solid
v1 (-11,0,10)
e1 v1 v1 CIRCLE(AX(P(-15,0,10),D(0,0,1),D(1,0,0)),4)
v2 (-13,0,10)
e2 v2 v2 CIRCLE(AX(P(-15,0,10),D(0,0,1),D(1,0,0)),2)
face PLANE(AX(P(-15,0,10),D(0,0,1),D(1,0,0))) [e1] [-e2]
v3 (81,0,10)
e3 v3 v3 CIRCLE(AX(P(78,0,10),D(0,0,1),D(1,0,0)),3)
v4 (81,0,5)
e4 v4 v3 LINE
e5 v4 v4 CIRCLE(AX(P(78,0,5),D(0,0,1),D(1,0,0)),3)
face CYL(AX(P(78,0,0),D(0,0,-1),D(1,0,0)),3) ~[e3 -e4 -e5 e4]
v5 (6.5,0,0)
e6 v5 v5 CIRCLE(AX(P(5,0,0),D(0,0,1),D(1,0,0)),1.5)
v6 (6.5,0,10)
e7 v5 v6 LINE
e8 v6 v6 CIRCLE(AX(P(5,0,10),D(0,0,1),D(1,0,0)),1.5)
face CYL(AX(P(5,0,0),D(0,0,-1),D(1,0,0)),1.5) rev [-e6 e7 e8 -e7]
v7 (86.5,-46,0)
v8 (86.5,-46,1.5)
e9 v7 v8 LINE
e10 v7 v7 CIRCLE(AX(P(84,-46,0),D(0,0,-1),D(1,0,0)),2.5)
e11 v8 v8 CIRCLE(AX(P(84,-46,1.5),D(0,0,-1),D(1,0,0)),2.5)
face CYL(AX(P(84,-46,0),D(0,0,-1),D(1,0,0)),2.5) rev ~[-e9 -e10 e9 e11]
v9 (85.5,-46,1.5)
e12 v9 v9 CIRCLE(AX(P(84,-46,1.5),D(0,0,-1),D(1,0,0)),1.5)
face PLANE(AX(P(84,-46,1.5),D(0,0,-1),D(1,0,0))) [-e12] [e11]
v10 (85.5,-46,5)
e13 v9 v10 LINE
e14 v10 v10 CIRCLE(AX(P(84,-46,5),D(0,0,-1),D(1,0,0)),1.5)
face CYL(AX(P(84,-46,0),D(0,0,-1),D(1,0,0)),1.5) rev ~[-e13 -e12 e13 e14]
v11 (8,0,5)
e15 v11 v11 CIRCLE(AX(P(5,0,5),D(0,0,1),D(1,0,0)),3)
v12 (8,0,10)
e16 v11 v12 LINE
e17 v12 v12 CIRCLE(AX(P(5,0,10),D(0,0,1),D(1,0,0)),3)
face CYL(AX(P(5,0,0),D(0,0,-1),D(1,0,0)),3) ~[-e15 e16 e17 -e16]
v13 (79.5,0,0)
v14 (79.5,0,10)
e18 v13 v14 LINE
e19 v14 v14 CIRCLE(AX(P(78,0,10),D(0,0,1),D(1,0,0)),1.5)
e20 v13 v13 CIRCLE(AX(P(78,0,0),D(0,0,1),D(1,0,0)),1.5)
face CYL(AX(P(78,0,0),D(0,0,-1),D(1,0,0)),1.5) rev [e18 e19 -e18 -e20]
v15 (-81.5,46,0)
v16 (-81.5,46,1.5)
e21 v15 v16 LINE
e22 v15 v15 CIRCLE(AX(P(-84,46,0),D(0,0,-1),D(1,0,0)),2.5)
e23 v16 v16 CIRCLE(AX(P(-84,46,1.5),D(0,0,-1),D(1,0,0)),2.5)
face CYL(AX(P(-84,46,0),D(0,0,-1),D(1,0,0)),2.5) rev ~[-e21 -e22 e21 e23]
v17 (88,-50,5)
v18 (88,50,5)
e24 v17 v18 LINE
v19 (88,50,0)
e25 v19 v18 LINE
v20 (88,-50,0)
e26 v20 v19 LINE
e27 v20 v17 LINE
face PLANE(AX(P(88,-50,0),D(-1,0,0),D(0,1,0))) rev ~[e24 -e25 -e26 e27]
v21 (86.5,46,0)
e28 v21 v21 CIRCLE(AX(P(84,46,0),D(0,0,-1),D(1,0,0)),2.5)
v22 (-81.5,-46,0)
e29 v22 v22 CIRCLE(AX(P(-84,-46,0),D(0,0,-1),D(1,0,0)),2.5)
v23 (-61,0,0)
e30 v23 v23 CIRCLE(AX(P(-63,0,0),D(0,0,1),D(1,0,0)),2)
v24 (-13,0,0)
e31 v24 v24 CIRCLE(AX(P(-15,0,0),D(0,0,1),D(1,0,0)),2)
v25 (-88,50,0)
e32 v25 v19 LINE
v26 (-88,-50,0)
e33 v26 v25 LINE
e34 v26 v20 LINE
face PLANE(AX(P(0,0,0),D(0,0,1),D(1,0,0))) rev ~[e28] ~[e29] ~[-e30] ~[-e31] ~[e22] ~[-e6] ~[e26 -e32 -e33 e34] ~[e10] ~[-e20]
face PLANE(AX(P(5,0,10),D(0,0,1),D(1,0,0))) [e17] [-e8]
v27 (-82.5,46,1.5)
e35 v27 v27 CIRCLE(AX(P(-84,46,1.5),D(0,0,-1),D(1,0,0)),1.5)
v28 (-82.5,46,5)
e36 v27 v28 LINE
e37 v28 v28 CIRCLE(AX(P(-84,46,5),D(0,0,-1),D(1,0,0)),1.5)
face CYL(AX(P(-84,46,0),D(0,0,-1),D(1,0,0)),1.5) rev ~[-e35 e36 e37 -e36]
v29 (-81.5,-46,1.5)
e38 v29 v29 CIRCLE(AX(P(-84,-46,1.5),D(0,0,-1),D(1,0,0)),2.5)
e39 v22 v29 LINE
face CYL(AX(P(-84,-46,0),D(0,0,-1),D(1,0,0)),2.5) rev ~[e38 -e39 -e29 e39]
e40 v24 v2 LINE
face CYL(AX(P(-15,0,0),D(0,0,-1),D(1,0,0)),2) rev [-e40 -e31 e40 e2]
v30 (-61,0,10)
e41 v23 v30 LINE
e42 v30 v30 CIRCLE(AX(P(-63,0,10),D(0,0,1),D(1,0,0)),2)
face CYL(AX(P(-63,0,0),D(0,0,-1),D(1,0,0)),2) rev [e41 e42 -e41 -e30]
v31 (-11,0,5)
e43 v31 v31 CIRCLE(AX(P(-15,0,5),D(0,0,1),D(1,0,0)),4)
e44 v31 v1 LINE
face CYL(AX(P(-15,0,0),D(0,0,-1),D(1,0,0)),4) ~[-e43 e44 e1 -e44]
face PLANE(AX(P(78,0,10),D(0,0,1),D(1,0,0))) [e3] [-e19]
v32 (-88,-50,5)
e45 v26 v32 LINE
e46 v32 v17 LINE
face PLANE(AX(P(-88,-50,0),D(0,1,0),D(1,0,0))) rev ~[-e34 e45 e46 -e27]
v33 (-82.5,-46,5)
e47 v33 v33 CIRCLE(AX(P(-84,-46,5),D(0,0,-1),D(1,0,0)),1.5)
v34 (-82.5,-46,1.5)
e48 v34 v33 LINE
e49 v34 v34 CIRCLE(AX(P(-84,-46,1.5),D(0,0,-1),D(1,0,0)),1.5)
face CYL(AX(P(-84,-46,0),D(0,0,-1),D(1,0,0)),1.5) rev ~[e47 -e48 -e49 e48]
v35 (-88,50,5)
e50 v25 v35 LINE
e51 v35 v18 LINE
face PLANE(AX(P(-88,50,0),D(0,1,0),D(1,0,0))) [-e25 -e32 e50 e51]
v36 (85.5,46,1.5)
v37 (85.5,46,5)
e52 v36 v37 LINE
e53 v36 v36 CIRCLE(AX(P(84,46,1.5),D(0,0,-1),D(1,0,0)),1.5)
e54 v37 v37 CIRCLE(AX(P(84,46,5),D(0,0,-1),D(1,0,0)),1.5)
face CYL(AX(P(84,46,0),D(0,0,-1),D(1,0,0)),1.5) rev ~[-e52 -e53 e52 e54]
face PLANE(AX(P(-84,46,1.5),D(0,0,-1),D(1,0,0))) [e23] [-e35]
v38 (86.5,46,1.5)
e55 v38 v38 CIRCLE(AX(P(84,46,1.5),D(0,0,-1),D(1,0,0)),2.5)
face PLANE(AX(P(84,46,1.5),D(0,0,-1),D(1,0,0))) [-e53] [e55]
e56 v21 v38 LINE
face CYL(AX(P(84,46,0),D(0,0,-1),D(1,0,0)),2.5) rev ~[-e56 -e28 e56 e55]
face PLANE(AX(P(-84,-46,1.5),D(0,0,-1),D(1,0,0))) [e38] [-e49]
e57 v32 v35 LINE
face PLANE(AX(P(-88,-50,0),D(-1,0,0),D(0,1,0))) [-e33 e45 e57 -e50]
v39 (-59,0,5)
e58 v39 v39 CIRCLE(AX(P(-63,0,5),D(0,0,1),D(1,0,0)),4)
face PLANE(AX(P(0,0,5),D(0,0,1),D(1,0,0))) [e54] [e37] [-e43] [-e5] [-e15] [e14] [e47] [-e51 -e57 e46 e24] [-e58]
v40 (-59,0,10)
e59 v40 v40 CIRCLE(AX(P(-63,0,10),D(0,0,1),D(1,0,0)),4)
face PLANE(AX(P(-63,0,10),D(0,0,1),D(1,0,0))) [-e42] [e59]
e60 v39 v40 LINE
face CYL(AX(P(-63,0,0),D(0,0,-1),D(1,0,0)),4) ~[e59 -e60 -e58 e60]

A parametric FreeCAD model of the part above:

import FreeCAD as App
import Part
import Sketcher

doc = App.newDocument("Part")
body = doc.addObject("PartDesign::Body", "Body")

sketch1 = body.newObject("Sketcher::SketchObject", "Sketch")
sketch1.AttachmentSupport = (doc.getObject("XY_Plane"), [""])
sketch1.MapMode = "FlatFace"
sketch1.addGeometry([
    Part.LineSegment(App.Vector(-88, 50, 0), App.Vector(-88, -50, 0)),
    Part.LineSegment(App.Vector(-88, -50, 0), App.Vector(88, -50, 0)),
    Part.LineSegment(App.Vector(88, -50, 0), App.Vector(88, 50, 0)),
    Part.LineSegment(App.Vector(88, 50, 0), App.Vector(-88, 50, 0)),
    Part.Circle(App.Vector(-63, 0, 0), App.Vector(0, 0, 1), 4),
    Part.Circle(App.Vector(-15, 0, 0), App.Vector(0, 0, 1), 4),
    Part.Circle(App.Vector(5, 0, 0), App.Vector(0, 0, 1), 3),
    Part.Circle(App.Vector(78, 0, 0), App.Vector(0, 0, 1), 3),
], False)
sketch1.addConstraint([
    Sketcher.Constraint("Coincident", 0, 2, 1, 1),
    Sketcher.Constraint("Coincident", 1, 2, 2, 1),
    Sketcher.Constraint("Coincident", 2, 2, 3, 1),
    Sketcher.Constraint("Coincident", 3, 2, 0, 1),
    Sketcher.Constraint("Vertical", 0),
    Sketcher.Constraint("Horizontal", 1),
    Sketcher.Constraint("Vertical", 2),
    Sketcher.Constraint("Horizontal", 3),
    Sketcher.Constraint("Equal", 4, 5),
    Sketcher.Constraint("Equal", 6, 7),
    Sketcher.Constraint("Symmetric", 0, 2, 2, 2, -1, 1),
    Sketcher.Constraint("PointOnObject", 4, 3, -1),
    Sketcher.Constraint("PointOnObject", 5, 3, -1),
    Sketcher.Constraint("PointOnObject", 6, 3, -1),
    Sketcher.Constraint("PointOnObject", 7, 3, -1),
    Sketcher.Constraint("Diameter", 4, 8.0),
    Sketcher.Constraint("Diameter", 6, 6.0),
    Sketcher.Constraint("DistanceX", 1, 1, 1, 2, 176.0),
    Sketcher.Constraint("DistanceY", 0, 2, 0, 1, 100.0),
    Sketcher.Constraint("DistanceX", 4, 3, -1, 1, 63.0),
    Sketcher.Constraint("DistanceX", 5, 3, -1, 1, 15.0),
    Sketcher.Constraint("DistanceX", -1, 1, 6, 3, 5.0),
    Sketcher.Constraint("DistanceX", -1, 1, 7, 3, 78.0),
])
pad1 = body.newObject("PartDesign::Pad", "Pad")
pad1.Profile = sketch1
pad1.Length = 5

sketch2 = body.newObject("Sketcher::SketchObject", "Sketch001")
sketch2.AttachmentSupport = (doc.getObject("XY_Plane"), [""])
sketch2.MapMode = "FlatFace"
sketch2.addGeometry([
    Part.Circle(App.Vector(-63, 0, 0), App.Vector(0, 0, 1), 4),
    Part.Circle(App.Vector(-63, 0, 0), App.Vector(0, 0, 1), 2),
    Part.Circle(App.Vector(-15, 0, 0), App.Vector(0, 0, 1), 4),
    Part.Circle(App.Vector(-15, 0, 0), App.Vector(0, 0, 1), 2),
    Part.Circle(App.Vector(5, 0, 0), App.Vector(0, 0, 1), 3),
    Part.Circle(App.Vector(5, 0, 0), App.Vector(0, 0, 1), 1.5),
    Part.Circle(App.Vector(78, 0, 0), App.Vector(0, 0, 1), 3),
    Part.Circle(App.Vector(78, 0, 0), App.Vector(0, 0, 1), 1.5),
], False)
sketch2.addConstraint([
    Sketcher.Constraint("Coincident", 1, 3, 0, 3),
    Sketcher.Constraint("Coincident", 3, 3, 2, 3),
    Sketcher.Constraint("Coincident", 5, 3, 4, 3),
    Sketcher.Constraint("Coincident", 7, 3, 6, 3),
    Sketcher.Constraint("Equal", 0, 2),
    Sketcher.Constraint("Equal", 1, 3),
    Sketcher.Constraint("Equal", 4, 6),
    Sketcher.Constraint("Equal", 5, 7),
    Sketcher.Constraint("PointOnObject", 0, 3, -1),
    Sketcher.Constraint("PointOnObject", 2, 3, -1),
    Sketcher.Constraint("PointOnObject", 4, 3, -1),
    Sketcher.Constraint("PointOnObject", 6, 3, -1),
    Sketcher.Constraint("Diameter", 0, 8.0),
    Sketcher.Constraint("Diameter", 1, 4.0),
    Sketcher.Constraint("Diameter", 4, 6.0),
    Sketcher.Constraint("Diameter", 5, 3.0),
    Sketcher.Constraint("DistanceX", 0, 3, -1, 1, 63.0),
    Sketcher.Constraint("DistanceX", 2, 3, -1, 1, 15.0),
    Sketcher.Constraint("DistanceX", -1, 1, 4, 3, 5.0),
    Sketcher.Constraint("DistanceX", -1, 1, 6, 3, 78.0),
])
pad2 = body.newObject("PartDesign::Pad", "Pad001")
pad2.Profile = sketch2
pad2.Length = 10

sketch3 = body.newObject("Sketcher::SketchObject", "Sketch002")
sketch3.AttachmentSupport = (doc.getObject("XY_Plane"), [""])
sketch3.MapMode = "FlatFace"
sketch3.addGeometry([
    Part.Circle(App.Vector(-84, -46, 0), App.Vector(0, 0, 1), 1.5),
    Part.Circle(App.Vector(-84, 46, 0), App.Vector(0, 0, 1), 1.5),
    Part.Circle(App.Vector(84, -46, 0), App.Vector(0, 0, 1), 1.5),
    Part.Circle(App.Vector(84, 46, 0), App.Vector(0, 0, 1), 1.5),
], False)
sketch3.addConstraint([
    Sketcher.Constraint("Equal", 0, 1),
    Sketcher.Constraint("Equal", 1, 2),
    Sketcher.Constraint("Equal", 2, 3),
    Sketcher.Constraint("Symmetric", 1, 3, 2, 3, -1, 1),
    Sketcher.Constraint("Symmetric", 0, 3, 3, 3, -1, 1),
    Sketcher.Constraint("Symmetric", 0, 3, 2, 3, -2),
    Sketcher.Constraint("Diameter", 0, 3.0),
    Sketcher.Constraint("DistanceX", 0, 3, -1, 1, 84.0),
    Sketcher.Constraint("DistanceY", 0, 3, -1, 1, 46.0),
])
pocket1 = body.newObject("PartDesign::Pocket", "Pocket")
pocket1.Profile = sketch3
pocket1.Type = "ThroughAll"
pocket1.Reversed = True

sketch4 = body.newObject("Sketcher::SketchObject", "Sketch003")
sketch4.AttachmentSupport = (doc.getObject("XY_Plane"), [""])
sketch4.MapMode = "FlatFace"
sketch4.addGeometry([
    Part.Circle(App.Vector(84, 46, 0), App.Vector(0, 0, 1), 2.5),
    Part.Circle(App.Vector(84, 46, 0), App.Vector(0, 0, 1), 1.5),
    Part.Circle(App.Vector(84, -46, 0), App.Vector(0, 0, 1), 2.5),
    Part.Circle(App.Vector(84, -46, 0), App.Vector(0, 0, 1), 1.5),
    Part.Circle(App.Vector(-84, -46, 0), App.Vector(0, 0, 1), 2.5),
    Part.Circle(App.Vector(-84, -46, 0), App.Vector(0, 0, 1), 1.5),
    Part.Circle(App.Vector(-84, 46, 0), App.Vector(0, 0, 1), 2.5),
    Part.Circle(App.Vector(-84, 46, 0), App.Vector(0, 0, 1), 1.5),
], False)
sketch4.addConstraint([
    Sketcher.Constraint("Coincident", 1, 3, 0, 3),
    Sketcher.Constraint("Coincident", 3, 3, 2, 3),
    Sketcher.Constraint("Coincident", 5, 3, 4, 3),
    Sketcher.Constraint("Coincident", 7, 3, 6, 3),
    Sketcher.Constraint("Equal", 0, 2),
    Sketcher.Constraint("Equal", 1, 3),
    Sketcher.Constraint("Equal", 2, 4),
    Sketcher.Constraint("Equal", 3, 5),
    Sketcher.Constraint("Equal", 4, 6),
    Sketcher.Constraint("Equal", 5, 7),
    Sketcher.Constraint("Symmetric", 0, 3, 4, 3, -1, 1),
    Sketcher.Constraint("Symmetric", 2, 3, 6, 3, -1, 1),
    Sketcher.Constraint("Symmetric", 2, 3, 4, 3, -2),
    Sketcher.Constraint("Diameter", 0, 5.0),
    Sketcher.Constraint("Diameter", 1, 3.0),
    Sketcher.Constraint("DistanceX", -1, 1, 0, 3, 84.0),
    Sketcher.Constraint("DistanceY", -1, 1, 0, 3, 46.0),
])
pocket2 = body.newObject("PartDesign::Pocket", "Pocket001")
pocket2.Profile = sketch4
pocket2.Length = 1.5
pocket2.Reversed = True

doc.recompute()
